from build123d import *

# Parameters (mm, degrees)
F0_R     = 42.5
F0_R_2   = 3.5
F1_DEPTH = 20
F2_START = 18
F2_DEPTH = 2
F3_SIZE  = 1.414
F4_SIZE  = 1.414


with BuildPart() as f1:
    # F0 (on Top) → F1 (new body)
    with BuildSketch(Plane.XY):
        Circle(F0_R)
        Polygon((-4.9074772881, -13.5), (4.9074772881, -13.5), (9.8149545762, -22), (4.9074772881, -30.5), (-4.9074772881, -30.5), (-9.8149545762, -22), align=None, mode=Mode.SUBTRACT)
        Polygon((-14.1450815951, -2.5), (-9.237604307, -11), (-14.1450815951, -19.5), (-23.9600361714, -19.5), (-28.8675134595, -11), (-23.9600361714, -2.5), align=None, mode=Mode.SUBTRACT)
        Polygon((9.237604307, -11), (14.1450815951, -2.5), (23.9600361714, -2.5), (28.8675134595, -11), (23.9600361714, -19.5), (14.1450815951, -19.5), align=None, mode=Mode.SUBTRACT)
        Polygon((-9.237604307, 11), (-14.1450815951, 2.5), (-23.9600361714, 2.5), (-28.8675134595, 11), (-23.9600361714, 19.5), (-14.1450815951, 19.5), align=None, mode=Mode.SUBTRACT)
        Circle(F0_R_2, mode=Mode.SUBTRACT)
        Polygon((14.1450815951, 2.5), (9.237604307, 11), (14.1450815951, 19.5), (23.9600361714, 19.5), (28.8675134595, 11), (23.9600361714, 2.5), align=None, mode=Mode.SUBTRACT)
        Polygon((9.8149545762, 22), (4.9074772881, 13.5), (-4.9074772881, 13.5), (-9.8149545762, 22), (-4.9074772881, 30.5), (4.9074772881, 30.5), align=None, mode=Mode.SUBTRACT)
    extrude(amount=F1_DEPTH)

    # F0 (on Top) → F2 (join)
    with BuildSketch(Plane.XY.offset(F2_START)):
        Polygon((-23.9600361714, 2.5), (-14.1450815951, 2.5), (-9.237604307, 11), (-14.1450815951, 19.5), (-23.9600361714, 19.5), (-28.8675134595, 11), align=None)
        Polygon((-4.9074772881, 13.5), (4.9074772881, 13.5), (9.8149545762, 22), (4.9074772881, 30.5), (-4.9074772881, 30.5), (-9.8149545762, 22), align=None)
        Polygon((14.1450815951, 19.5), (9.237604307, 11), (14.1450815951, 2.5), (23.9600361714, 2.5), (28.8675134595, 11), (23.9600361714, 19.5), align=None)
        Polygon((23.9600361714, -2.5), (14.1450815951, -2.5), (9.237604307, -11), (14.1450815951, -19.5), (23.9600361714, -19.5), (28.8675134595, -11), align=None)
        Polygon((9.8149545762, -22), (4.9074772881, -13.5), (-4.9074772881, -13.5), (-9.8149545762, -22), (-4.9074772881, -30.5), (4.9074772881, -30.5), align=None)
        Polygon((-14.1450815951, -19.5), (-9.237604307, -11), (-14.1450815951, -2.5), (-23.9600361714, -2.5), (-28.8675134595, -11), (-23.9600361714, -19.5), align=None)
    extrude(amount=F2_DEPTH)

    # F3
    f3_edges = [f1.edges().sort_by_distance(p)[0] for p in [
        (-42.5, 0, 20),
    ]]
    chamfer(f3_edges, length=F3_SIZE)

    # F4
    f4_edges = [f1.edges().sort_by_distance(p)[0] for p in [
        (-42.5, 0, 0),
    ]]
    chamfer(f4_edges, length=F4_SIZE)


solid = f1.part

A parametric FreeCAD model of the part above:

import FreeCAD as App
import Part
import Sketcher
from FreeCAD import Vector
Q = App.Units.Quantity


def edges_at(feature, points):
    """Names of the edges that pass closest to the given points."""
    edges = feature.Shape.Edges
    near = lambda p: min(range(len(edges)), key=lambda i: edges[i].distToShape(Part.Vertex(*p))[0])
    return sorted({f"Edge{near(p) + 1}" for p in points})

doc = App.newDocument("Part")
body = doc.addObject("PartDesign::Body", "Body")

# Sketch on XY plane
sketch1 = body.newObject("Sketcher::SketchObject", "Sketch")
sketch1.AttachmentSupport = (doc.getObject("XY_Plane"), [""])
sketch1.MapMode = "FlatFace"
sketch1.addGeometry([
    Part.Circle(Vector(0, 0, 0), Vector(0, 0, 1), 42.5),  # 0
    Part.LineSegment(Vector(-24, -2.5, 0), Vector(-14.1, -2.5, 0)),  # 1
    Part.LineSegment(Vector(-14.1, -2.5, 0), Vector(-9.2, -11, 0)),  # 2
    Part.LineSegment(Vector(-9.2, -11, 0), Vector(-14.1, -19.5, 0)),  # 3
    Part.LineSegment(Vector(-14.1, -19.5, 0), Vector(-24, -19.5, 0)),  # 4
    Part.LineSegment(Vector(-24, -19.5, 0), Vector(-28.9, -11, 0)),  # 5
    Part.LineSegment(Vector(-28.9, -11, 0), Vector(-24, -2.5, 0)),  # 6
    Part.LineSegment(Vector(-9.8, -22, 0), Vector(-4.9, -13.5, 0)),  # 7
    Part.LineSegment(Vector(-4.9, -13.5, 0), Vector(4.9, -13.5, 0)),  # 8
    Part.LineSegment(Vector(4.9, -13.5, 0), Vector(9.8, -22, 0)),  # 9
    Part.LineSegment(Vector(9.8, -22, 0), Vector(4.9, -30.5, 0)),  # 10
    Part.LineSegment(Vector(4.9, -30.5, 0), Vector(-4.9, -30.5, 0)),  # 11
    Part.LineSegment(Vector(-4.9, -30.5, 0), Vector(-9.8, -22, 0)),  # 12
    Part.LineSegment(Vector(14.1, -19.5, 0), Vector(9.2, -11, 0)),  # 13
    Part.LineSegment(Vector(9.2, -11, 0), Vector(14.1, -2.5, 0)),  # 14
    Part.LineSegment(Vector(14.1, -2.5, 0), Vector(24, -2.5, 0)),  # 15
    Part.LineSegment(Vector(24, -2.5, 0), Vector(28.9, -11, 0)),  # 16
    Part.LineSegment(Vector(28.9, -11, 0), Vector(24, -19.5, 0)),  # 17
    Part.LineSegment(Vector(24, -19.5, 0), Vector(14.1, -19.5, 0)),  # 18
    Part.LineSegment(Vector(-14.1, 19.5, 0), Vector(-9.2, 11, 0)),  # 19
    Part.LineSegment(Vector(-9.2, 11, 0), Vector(-14.1, 2.5, 0)),  # 20
    Part.LineSegment(Vector(-14.1, 2.5, 0), Vector(-24, 2.5, 0)),  # 21
    Part.LineSegment(Vector(-24, 2.5, 0), Vector(-28.9, 11, 0)),  # 22
    Part.LineSegment(Vector(-28.9, 11, 0), Vector(-24, 19.5, 0)),  # 23
    Part.LineSegment(Vector(-24, 19.5, 0), Vector(-14.1, 19.5, 0)),  # 24
    Part.Circle(Vector(0, 0, 0), Vector(0, 0, 1), 3.5),  # 25
    Part.LineSegment(Vector(24, 2.5, 0), Vector(14.1, 2.5, 0)),  # 26
    Part.LineSegment(Vector(14.1, 2.5, 0), Vector(9.2, 11, 0)),  # 27
    Part.LineSegment(Vector(9.2, 11, 0), Vector(14.1, 19.5, 0)),  # 28
    Part.LineSegment(Vector(14.1, 19.5, 0), Vector(24, 19.5, 0)),  # 29
    Part.LineSegment(Vector(24, 19.5, 0), Vector(28.9, 11, 0)),  # 30
    Part.LineSegment(Vector(28.9, 11, 0), Vector(24, 2.5, 0)),  # 31
    Part.LineSegment(Vector(4.9, 30.5, 0), Vector(9.8, 22, 0)),  # 32
    Part.LineSegment(Vector(9.8, 22, 0), Vector(4.9, 13.5, 0)),  # 33
    Part.LineSegment(Vector(4.9, 13.5, 0), Vector(-4.9, 13.5, 0)),  # 34
    Part.LineSegment(Vector(-4.9, 13.5, 0), Vector(-9.8, 22, 0)),  # 35
    Part.LineSegment(Vector(-9.8, 22, 0), Vector(-4.9, 30.5, 0)),  # 36
    Part.LineSegment(Vector(-4.9, 30.5, 0), Vector(4.9, 30.5, 0)),  # 37
], False)
sketch1.addConstraint([
    Sketcher.Constraint("Coincident", 1, 2, 2, 1),
    Sketcher.Constraint("Coincident", 2, 2, 3, 1),
    Sketcher.Constraint("Coincident", 3, 2, 4, 1),
    Sketcher.Constraint("Coincident", 4, 2, 5, 1),
    Sketcher.Constraint("Coincident", 5, 2, 6, 1),
    Sketcher.Constraint("Coincident", 6, 2, 1, 1),
    Sketcher.Constraint("Coincident", 7, 2, 8, 1),
    Sketcher.Constraint("Coincident", 8, 2, 9, 1),
    Sketcher.Constraint("Coincident", 9, 2, 10, 1),
    Sketcher.Constraint("Coincident", 10, 2, 11, 1),
    Sketcher.Constraint("Coincident", 11, 2, 12, 1),
    Sketcher.Constraint("Coincident", 12, 2, 7, 1),
    Sketcher.Constraint("Coincident", 13, 2, 14, 1),
    Sketcher.Constraint("Coincident", 14, 2, 15, 1),
    Sketcher.Constraint("Coincident", 15, 2, 16, 1),
    Sketcher.Constraint("Coincident", 16, 2, 17, 1),
    Sketcher.Constraint("Coincident", 17, 2, 18, 1),
    Sketcher.Constraint("Coincident", 18, 2, 13, 1),
    Sketcher.Constraint("Coincident", 19, 2, 20, 1),
    Sketcher.Constraint("Coincident", 20, 2, 21, 1),
    Sketcher.Constraint("Coincident", 21, 2, 22, 1),
    Sketcher.Constraint("Coincident", 22, 2, 23, 1),
    Sketcher.Constraint("Coincident", 23, 2, 24, 1),
    Sketcher.Constraint("Coincident", 24, 2, 19, 1),
    Sketcher.Constraint("Coincident", 26, 2, 27, 1),
    Sketcher.Constraint("Coincident", 27, 2, 28, 1),
    Sketcher.Constraint("Coincident", 28, 2, 29, 1),
    Sketcher.Constraint("Coincident", 29, 2, 30, 1),
    Sketcher.Constraint("Coincident", 30, 2, 31, 1),
    Sketcher.Constraint("Coincident", 31, 2, 26, 1),
    Sketcher.Constraint("Coincident", 32, 2, 33, 1),
    Sketcher.Constraint("Coincident", 33, 2, 34, 1),
    Sketcher.Constraint("Coincident", 34, 2, 35, 1),
    Sketcher.Constraint("Coincident", 35, 2, 36, 1),
    Sketcher.Constraint("Coincident", 36, 2, 37, 1),
    Sketcher.Constraint("Coincident", 37, 2, 32, 1),
    Sketcher.Constraint("Horizontal", 1),
    Sketcher.Constraint("Horizontal", 4),
    Sketcher.Constraint("Horizontal", 8),
    Sketcher.Constraint("Horizontal", 11),
    Sketcher.Constraint("Horizontal", 15),
    Sketcher.Constraint("Horizontal", 18),
    Sketcher.Constraint("Horizontal", 21),
    Sketcher.Constraint("Horizontal", 24),
    Sketcher.Constraint("Horizontal", 26),
    Sketcher.Constraint("Horizontal", 29),
    Sketcher.Constraint("Horizontal", 34),
    Sketcher.Constraint("Horizontal", 37),
    Sketcher.Constraint("Coincident", 0, 3, -1, 1),
    Sketcher.Constraint("Coincident", 25, 3, -1, 1),
    Sketcher.Constraint("Symmetric", 13, 2, 19, 2, -1, 1),
    Sketcher.Constraint("Symmetric", 14, 2, 20, 2, -1, 1),
    Sketcher.Constraint("Symmetric", 16, 2, 22, 2, -1, 1),
    Sketcher.Constraint("Symmetric", 17, 2, 23, 2, -1, 1),
    Sketcher.Constraint("Symmetric", 1, 2, 26, 2, -1, 1),
    Sketcher.Constraint("Symmetric", 2, 2, 27, 2, -1, 1),
    Sketcher.Constraint("Symmetric", 3, 2, 28, 2, -1, 1),
    Sketcher.Constraint("Symmetric", 5, 2, 30, 2, -1, 1),
    Sketcher.Constraint("Symmetric", 12, 2, 32, 2, -1, 1),
    Sketcher.Constraint("Symmetric", 7, 2, 33, 2, -1, 1),
    Sketcher.Constraint("Symmetric", 9, 2, 35, 2, -1, 1),
    Sketcher.Constraint("Symmetric", 10, 2, 36, 2, -1, 1),
    Sketcher.Constraint("Symmetric", 9, 2, 12, 2, -2),
    Sketcher.Constraint("Symmetric", 2, 2, 13, 2, -2),
    Sketcher.Constraint("Symmetric", 1, 2, 14, 2, -2),
    Sketcher.Constraint("Symmetric", 5, 2, 16, 2, -2),
    Sketcher.Constraint("Symmetric", 4, 2, 17, 2, -2),
    Sketcher.Constraint("Parallel", 2, 5),
    Sketcher.Constraint("Parallel", 3, 6),
    Sketcher.Constraint("Parallel", 6, 7),
    Sketcher.Constraint("Parallel", 5, 9),
    Sketcher.Constraint("Parallel", 7, 10),
    Sketcher.Constraint("Parallel", 9, 12),
    Sketcher.Constraint("Parallel", 12, 13),
    Sketcher.Constraint("Parallel", 10, 14),
    Sketcher.Constraint("Parallel", 13, 16),
    Sketcher.Constraint("Parallel", 16, 19),
    Sketcher.Constraint("Parallel", 19, 22),
    Sketcher.Constraint("Parallel", 27, 30),
    Sketcher.Constraint("Parallel", 28, 31),
    Sketcher.Constraint("Parallel", 30, 32),
    Sketcher.Constraint("Parallel", 32, 35),
    Sketcher.Constraint("Horizontal", 2, 2, 5, 2),
    Sketcher.Constraint("Vertical", 1, 2, 3, 2),
    Sketcher.Constraint("Vertical", 8, 2, 10, 2),
    Sketcher.Constraint("Equal", 4, 8),
    Sketcher.Constraint("Equal", 6, 7),
    Sketcher.Constraint("Diameter", 0, Q("85 mm")),
    Sketcher.Constraint("Diameter", 25, Q("7 mm")),
    Sketcher.Constraint("Angle", 2, Q("-60 deg")),
    Sketcher.Constraint("DistanceY", 2, 2, -1, 1, Q("11 mm")),
    Sketcher.Constraint("DistanceY", 9, 2, -1, 1, Q("22 mm")),
    Sketcher.Constraint("DistanceY", 3, 2, 1, 2, Q("17 mm")),
    Sketcher.Constraint("DistanceX", 1, 1, 1, 2, Q("9.814955 mm")),
    Sketcher.Constraint("DistanceX", 1, 2, -1, 1, Q("14.145082 mm")),
])
pad1 = body.newObject("PartDesign::Pad", "Pad")
pad1.Profile = sketch1
pad1.Length = 20

# Sketch on XY plane
sketch2 = body.newObject("Sketcher::SketchObject", "Sketch001")
sketch2.AttachmentSupport = (doc.getObject("XY_Plane"), [""])
sketch2.MapMode = "FlatFace"
sketch2.AttachmentOffset = App.Placement(Vector(0, 0, 18), App.Rotation())
sketch2.addGeometry([
    Part.LineSegment(Vector(-24, 2, 0), Vector(-14, 2, 0)),  # 0
    Part.LineSegment(Vector(-14, 2, 0), Vector(-9, 11, 0)),  # 1
    Part.LineSegment(Vector(-9, 11, 0), Vector(-14, 20, 0)),  # 2
    Part.LineSegment(Vector(-14, 20, 0), Vector(-24, 20, 0)),  # 3
    Part.LineSegment(Vector(-24, 20, 0), Vector(-29, 11, 0)),  # 4
    Part.LineSegment(Vector(-29, 11, 0), Vector(-24, 2, 0)),  # 5
    Part.LineSegment(Vector(-5, 14, 0), Vector(5, 14, 0)),  # 6
    Part.LineSegment(Vector(5, 14, 0), Vector(10, 22, 0)),  # 7
    Part.LineSegment(Vector(10, 22, 0), Vector(5, 30, 0)),  # 8
    Part.LineSegment(Vector(5, 30, 0), Vector(-5, 30, 0)),  # 9
    Part.LineSegment(Vector(-5, 30, 0), Vector(-10, 22, 0)),  # 10
    Part.LineSegment(Vector(-10, 22, 0), Vector(-5, 14, 0)),  # 11
    Part.LineSegment(Vector(14, 20, 0), Vector(9, 11, 0)),  # 12
    Part.LineSegment(Vector(9, 11, 0), Vector(14, 2, 0)),  # 13
    Part.LineSegment(Vector(14, 2, 0), Vector(24, 2, 0)),  # 14
    Part.LineSegment(Vector(24, 2, 0), Vector(29, 11, 0)),  # 15
    Part.LineSegment(Vector(29, 11, 0), Vector(24, 20, 0)),  # 16
    Part.LineSegment(Vector(24, 20, 0), Vector(14, 20, 0)),  # 17
    Part.LineSegment(Vector(24, -2, 0), Vector(14, -2, 0)),  # 18
    Part.LineSegment(Vector(14, -2, 0), Vector(9, -11, 0)),  # 19
    Part.LineSegment(Vector(9, -11, 0), Vector(14, -20, 0)),  # 20
    Part.LineSegment(Vector(14, -20, 0), Vector(24, -20, 0)),  # 21
    Part.LineSegment(Vector(24, -20, 0), Vector(29, -11, 0)),  # 22
    Part.LineSegment(Vector(29, -11, 0), Vector(24, -2, 0)),  # 23
    Part.LineSegment(Vector(10, -22, 0), Vector(5, -14, 0)),  # 24
    Part.LineSegment(Vector(5, -14, 0), Vector(-5, -14, 0)),  # 25
    Part.LineSegment(Vector(-5, -14, 0), Vector(-10, -22, 0)),  # 26
    Part.LineSegment(Vector(-10, -22, 0), Vector(-5, -30, 0)),  # 27
    Part.LineSegment(Vector(-5, -30, 0), Vector(5, -30, 0)),  # 28
    Part.LineSegment(Vector(5, -30, 0), Vector(10, -22, 0)),  # 29
    Part.LineSegment(Vector(-14, -20, 0), Vector(-9, -11, 0)),  # 30
    Part.LineSegment(Vector(-9, -11, 0), Vector(-14, -2, 0)),  # 31
    Part.LineSegment(Vector(-14, -2, 0), Vector(-24, -2, 0)),  # 32
    Part.LineSegment(Vector(-24, -2, 0), Vector(-29, -11, 0)),  # 33
    Part.LineSegment(Vector(-29, -11, 0), Vector(-24, -20, 0)),  # 34
    Part.LineSegment(Vector(-24, -20, 0), Vector(-14, -20, 0)),  # 35
], False)
sketch2.addConstraint([
    Sketcher.Constraint("Coincident", 0, 2, 1, 1),
    Sketcher.Constraint("Coincident", 1, 2, 2, 1),
    Sketcher.Constraint("Coincident", 2, 2, 3, 1),
    Sketcher.Constraint("Coincident", 3, 2, 4, 1),
    Sketcher.Constraint("Coincident", 4, 2, 5, 1),
    Sketcher.Constraint("Coincident", 5, 2, 0, 1),
    Sketcher.Constraint("Coincident", 6, 2, 7, 1),
    Sketcher.Constraint("Coincident", 7, 2, 8, 1),
    Sketcher.Constraint("Coincident", 8, 2, 9, 1),
    Sketcher.Constraint("Coincident", 9, 2, 10, 1),
    Sketcher.Constraint("Coincident", 10, 2, 11, 1),
    Sketcher.Constraint("Coincident", 11, 2, 6, 1),
    Sketcher.Constraint("Coincident", 12, 2, 13, 1),
    Sketcher.Constraint("Coincident", 13, 2, 14, 1),
    Sketcher.Constraint("Coincident", 14, 2, 15, 1),
    Sketcher.Constraint("Coincident", 15, 2, 16, 1),
    Sketcher.Constraint("Coincident", 16, 2, 17, 1),
    Sketcher.Constraint("Coincident", 17, 2, 12, 1),
    Sketcher.Constraint("Coincident", 18, 2, 19, 1),
    Sketcher.Constraint("Coincident", 19, 2, 20, 1),
    Sketcher.Constraint("Coincident", 20, 2, 21, 1),
    Sketcher.Constraint("Coincident", 21, 2, 22, 1),
    Sketcher.Constraint("Coincident", 22, 2, 23, 1),
    Sketcher.Constraint("Coincident", 23, 2, 18, 1),
    Sketcher.Constraint("Coincident", 24, 2, 25, 1),
    Sketcher.Constraint("Coincident", 25, 2, 26, 1),
    Sketcher.Constraint("Coincident", 26, 2, 27, 1),
    Sketcher.Constraint("Coincident", 27, 2, 28, 1),
    Sketcher.Constraint("Coincident", 28, 2, 29, 1),
    Sketcher.Constraint("Coincident", 29, 2, 24, 1),
    Sketcher.Constraint("Coincident", 30, 2, 31, 1),
    Sketcher.Constraint("Coincident", 31, 2, 32, 1),
    Sketcher.Constraint("Coincident", 32, 2, 33, 1),
    Sketcher.Constraint("Coincident", 33, 2, 34, 1),
    Sketcher.Constraint("Coincident", 34, 2, 35, 1),
    Sketcher.Constraint("Coincident", 35, 2, 30, 1),
    Sketcher.Constraint("Horizontal", 0),
    Sketcher.Constraint("Horizontal", 3),
    Sketcher.Constraint("Horizontal", 6),
    Sketcher.Constraint("Horizontal", 9),
    Sketcher.Constraint("Horizontal", 14),
    Sketcher.Constraint("Horizontal", 17),
    Sketcher.Constraint("Horizontal", 18),
    Sketcher.Constraint("Horizontal", 21),
    Sketcher.Constraint("Horizontal", 25),
    Sketcher.Constraint("Horizontal", 28),
    Sketcher.Constraint("Horizontal", 32),
    Sketcher.Constraint("Horizontal", 35),
    Sketcher.Constraint("Symmetric", 0, 2, 18, 2, -1, 1),
    Sketcher.Constraint("Symmetric", 1, 2, 19, 2, -1, 1),
    Sketcher.Constraint("Symmetric", 2, 2, 20, 2, -1, 1),
    Sketcher.Constraint("Symmetric", 4, 2, 22, 2, -1, 1),
    Sketcher.Constraint("Symmetric", 11, 2, 24, 2, -1, 1),
    Sketcher.Constraint("Symmetric", 7, 2, 26, 2, -1, 1),
    Sketcher.Constraint("Symmetric", 8, 2, 27, 2, -1, 1),
    Sketcher.Constraint("Symmetric", 10, 2, 29, 2, -1, 1),
    Sketcher.Constraint("Symmetric", 12, 2, 30, 2, -1, 1),
    Sketcher.Constraint("Symmetric", 13, 2, 31, 2, -1, 1),
    Sketcher.Constraint("Symmetric", 15, 2, 33, 2, -1, 1),
    Sketcher.Constraint("Symmetric", 16, 2, 34, 2, -1, 1),
    Sketcher.Constraint("Symmetric", 7, 2, 10, 2, -2),
    Sketcher.Constraint("Symmetric", 1, 2, 12, 2, -2),
    Sketcher.Constraint("Symmetric", 0, 2, 13, 2, -2),
    Sketcher.Constraint("Symmetric", 4, 2, 15, 2, -2),
    Sketcher.Constraint("Symmetric", 3, 2, 16, 2, -2),
    Sketcher.Constraint("Parallel", 1, 4),
    Sketcher.Constraint("Parallel", 2, 5),
    Sketcher.Constraint("Parallel", 4, 7),
    Sketcher.Constraint("Parallel", 5, 8),
    Sketcher.Constraint("Parallel", 7, 10),
    Sketcher.Constraint("Parallel", 8, 11),
    Sketcher.Constraint("Parallel", 10, 12),
    Sketcher.Constraint("Parallel", 11, 13),
    Sketcher.Constraint("Parallel", 12, 15),
    Sketcher.Constraint("Parallel", 19, 22),
    Sketcher.Constraint("Parallel", 20, 23),
    Sketcher.Constraint("Parallel", 22, 26),
    Sketcher.Constraint("Parallel", 26, 29),
    Sketcher.Constraint("Parallel", 29, 30),
    Sketcher.Constraint("Parallel", 30, 33),
    Sketcher.Constraint("Horizontal", 1, 2, 4, 2),
    Sketcher.Constraint("Vertical", 0, 2, 2, 2),
    Sketcher.Constraint("Vertical", 6, 2, 8, 2),
    Sketcher.Constraint("Equal", 3, 6),
    Sketcher.Constraint("Equal", 5, 7),
    Sketcher.Constraint("Angle", 1, Q("60 deg")),
    Sketcher.Constraint("DistanceY", -1, 1, 1, 2, Q("11 mm")),
    Sketcher.Constraint("DistanceY", -1, 1, 7, 2, Q("22 mm")),
    Sketcher.Constraint("DistanceY", 0, 2, 2, 2, Q("17 mm")),
    Sketcher.Constraint("DistanceX", 0, 1, 0, 2, Q("9.814955 mm")),
    Sketcher.Constraint("DistanceX", 0, 2, -1, 1, Q("14.145082 mm")),
])
pad2 = body.newObject("PartDesign::Pad", "Pad001")
pad2.Profile = sketch2
pad2.Length = 2
doc.recompute()

chamfer = body.newObject("PartDesign::Chamfer", "Chamfer")
chamfer.Base = (pad2, edges_at(pad2, [(-42.5, 0, 20)]))
chamfer.Size = 1.414
doc.recompute()

chamfer2 = body.newObject("PartDesign::Chamfer", "Chamfer001")
chamfer2.Base = (chamfer, edges_at(chamfer, [(-42.5, 0, 0)]))
chamfer2.Size = 1.414

doc.recompute()
